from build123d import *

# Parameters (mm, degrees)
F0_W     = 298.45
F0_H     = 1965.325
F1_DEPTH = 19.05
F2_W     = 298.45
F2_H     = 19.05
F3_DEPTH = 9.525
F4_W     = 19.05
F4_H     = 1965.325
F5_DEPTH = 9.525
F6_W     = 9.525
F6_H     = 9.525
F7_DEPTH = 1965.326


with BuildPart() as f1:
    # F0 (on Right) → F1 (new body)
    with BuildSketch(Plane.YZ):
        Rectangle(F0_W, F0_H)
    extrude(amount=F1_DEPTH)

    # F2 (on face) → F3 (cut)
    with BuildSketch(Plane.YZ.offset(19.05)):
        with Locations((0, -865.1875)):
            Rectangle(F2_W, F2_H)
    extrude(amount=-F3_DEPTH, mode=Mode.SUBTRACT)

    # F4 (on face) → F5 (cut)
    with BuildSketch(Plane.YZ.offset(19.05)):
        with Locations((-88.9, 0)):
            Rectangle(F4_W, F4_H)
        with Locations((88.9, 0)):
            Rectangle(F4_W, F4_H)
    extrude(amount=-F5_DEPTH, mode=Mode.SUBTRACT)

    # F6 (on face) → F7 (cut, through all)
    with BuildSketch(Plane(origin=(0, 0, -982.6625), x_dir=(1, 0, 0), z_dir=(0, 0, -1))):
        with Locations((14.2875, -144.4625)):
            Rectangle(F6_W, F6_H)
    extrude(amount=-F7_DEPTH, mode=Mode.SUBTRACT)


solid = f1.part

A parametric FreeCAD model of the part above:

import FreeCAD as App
import Part
import Sketcher
from FreeCAD import Vector
Q = App.Units.Quantity

doc = App.newDocument("Part")
params = doc.addObject("Spreadsheet::Sheet", "Params")
for row, (alias, value) in enumerate([
    ("sketch1_width", "11.75 in"),
    ("sketch1_height", "77.375 in"),
    ("pad1_length", "0.75 in"),
    ("sketch2_width", "11.75 in"),
    ("sketch2_height", "0.75 in"),
    ("pocket1_length", "0.375 in"),
    ("sketch3_width", "0.75 in"),
    ("sketch3_height", "77.375 in"),
    ("pocket2_length", "0.375 in"),
    ("sketch4_width", "0.375 in"),
], start=1):
    params.set(f"A{row}", alias)
    params.set(f"B{row}", "=" + value)
    params.setAlias(f"B{row}", alias)

body = doc.addObject("PartDesign::Body", "Body")

sketch1 = body.newObject("Sketcher::SketchObject", "Sketch")
sketch1.AttachmentSupport = (doc.getObject("YZ_Plane"), [""])
sketch1.MapMode = "FlatFace"
sketch1.addGeometry([
    Part.LineSegment(Vector(-149, 983, 0), Vector(-149, -983, 0)),
    Part.LineSegment(Vector(-149, -983, 0), Vector(149, -983, 0)),
    Part.LineSegment(Vector(149, -983, 0), Vector(149, 983, 0)),
    Part.LineSegment(Vector(149, 983, 0), Vector(-149, 983, 0)),
], False)
sketch1.addConstraint([
    Sketcher.Constraint("Coincident", 0, 2, 1, 1),
    Sketcher.Constraint("Coincident", 1, 2, 2, 1),
    Sketcher.Constraint("Coincident", 2, 2, 3, 1),
    Sketcher.Constraint("Coincident", 3, 2, 0, 1),
    Sketcher.Constraint("Vertical", 0),
    Sketcher.Constraint("Horizontal", 1),
    Sketcher.Constraint("Vertical", 2),
    Sketcher.Constraint("Horizontal", 3),
    Sketcher.Constraint("Symmetric", 0, 2, 2, 2, -1, 1),
    Sketcher.Constraint("DistanceX", 1, 1, 1, 2, Q("11.75 in")),
    Sketcher.Constraint("DistanceY", 0, 2, 0, 1, Q("77.375 in")),
])
sketch1.setExpression("Constraints[9]", "Params.sketch1_width")
sketch1.setExpression("Constraints[10]", "Params.sketch1_height")
pad1 = body.newObject("PartDesign::Pad", "Pad")
pad1.Profile = sketch1
pad1.setExpression("Length", "Params.pad1_length")

sketch2 = body.newObject("Sketcher::SketchObject", "Sketch001")
sketch2.AttachmentSupport = (doc.getObject("YZ_Plane"), [""])
sketch2.MapMode = "FlatFace"
sketch2.AttachmentOffset = App.Placement(Vector(0, 0, 0.75 * 25.4), App.Rotation())
sketch2.addGeometry([
    Part.LineSegment(Vector(-149, -856, 0), Vector(-149, -875, 0)),
    Part.LineSegment(Vector(-149, -875, 0), Vector(149, -875, 0)),
    Part.LineSegment(Vector(149, -875, 0), Vector(149, -856, 0)),
    Part.LineSegment(Vector(149, -856, 0), Vector(-149, -856, 0)),
], False)
sketch2.addConstraint([
    Sketcher.Constraint("Coincident", 0, 2, 1, 1),
    Sketcher.Constraint("Coincident", 1, 2, 2, 1),
    Sketcher.Constraint("Coincident", 2, 2, 3, 1),
    Sketcher.Constraint("Coincident", 3, 2, 0, 1),
    Sketcher.Constraint("Vertical", 0),
    Sketcher.Constraint("Horizontal", 1),
    Sketcher.Constraint("Vertical", 2),
    Sketcher.Constraint("Horizontal", 3),
    Sketcher.Constraint("DistanceX", 1, 1, 1, 2, Q("11.75 in")),
    Sketcher.Constraint("DistanceY", 0, 2, 0, 1, Q("0.75 in")),
    Sketcher.Constraint("DistanceX", 0, 2, -1, 1, Q("5.875 in")),
    Sketcher.Constraint("DistanceY", 0, 2, -1, 1, Q("34.4375 in")),
])
sketch2.setExpression("Constraints[8]", "Params.sketch2_width")
sketch2.setExpression("Constraints[9]", "Params.sketch2_height")
pocket1 = body.newObject("PartDesign::Pocket", "Pocket")
pocket1.Profile = sketch2
pocket1.setExpression("Length", "Params.pocket1_length")

sketch3 = body.newObject("Sketcher::SketchObject", "Sketch002")
sketch3.AttachmentSupport = (doc.getObject("YZ_Plane"), [""])
sketch3.MapMode = "FlatFace"
sketch3.AttachmentOffset = App.Placement(Vector(0, 0, 0.75 * 25.4), App.Rotation())
sketch3.addGeometry([
    Part.LineSegment(Vector(-98, 983, 0), Vector(-98, -983, 0)),
    Part.LineSegment(Vector(-98, -983, 0), Vector(-79, -983, 0)),
    Part.LineSegment(Vector(-79, -983, 0), Vector(-79, 983, 0)),
    Part.LineSegment(Vector(-79, 983, 0), Vector(-98, 983, 0)),
    Part.LineSegment(Vector(79, 983, 0), Vector(79, -983, 0)),
    Part.LineSegment(Vector(79, -983, 0), Vector(98, -983, 0)),
    Part.LineSegment(Vector(98, -983, 0), Vector(98, 983, 0)),
    Part.LineSegment(Vector(98, 983, 0), Vector(79, 983, 0)),
], False)
sketch3.addConstraint([
    Sketcher.Constraint("Coincident", 0, 2, 1, 1),
    Sketcher.Constraint("Coincident", 1, 2, 2, 1),
    Sketcher.Constraint("Coincident", 2, 2, 3, 1),
    Sketcher.Constraint("Coincident", 3, 2, 0, 1),
    Sketcher.Constraint("Coincident", 4, 2, 5, 1),
    Sketcher.Constraint("Coincident", 5, 2, 6, 1),
    Sketcher.Constraint("Coincident", 6, 2, 7, 1),
    Sketcher.Constraint("Coincident", 7, 2, 4, 1),
    Sketcher.Constraint("Vertical", 0),
    Sketcher.Constraint("Horizontal", 1),
    Sketcher.Constraint("Vertical", 2),
    Sketcher.Constraint("Horizontal", 3),
    Sketcher.Constraint("Vertical", 4),
    Sketcher.Constraint("Horizontal", 5),
    Sketcher.Constraint("Vertical", 6),
    Sketcher.Constraint("Horizontal", 7),
    Sketcher.Constraint("Symmetric", 2, 2, 4, 2, -1, 1),
    Sketcher.Constraint("Symmetric", 0, 2, 6, 2, -1, 1),
    Sketcher.Constraint("Horizontal", 1, 2, 4, 2),
    Sketcher.Constraint("DistanceX", 0, 2, 4, 2, Q("7 in")),
    Sketcher.Constraint("DistanceX", 1, 1, 1, 2, Q("0.75 in")),
    Sketcher.Constraint("DistanceY", 0, 2, 0, 1, Q("77.375 in")),
])
sketch3.setExpression("Constraints[20]", "Params.sketch3_width")
sketch3.setExpression("Constraints[21]", "Params.sketch3_height")
pocket2 = body.newObject("PartDesign::Pocket", "Pocket001")
pocket2.Profile = sketch3
pocket2.setExpression("Length", "Params.pocket2_length")

sketch4 = body.newObject("Sketcher::SketchObject", "Sketch003")
sketch4.AttachmentSupport = (doc.getObject("XY_Plane"), [""])
sketch4.MapMode = "FlatFace"
sketch4.AttachmentOffset = App.Placement(Vector(0, 0, -38.6875 * 25.4), App.Rotation())
sketch4.addGeometry([
    Part.LineSegment(Vector(10, 140, 0), Vector(10, 149, 0)),
    Part.LineSegment(Vector(10, 149, 0), Vector(19, 149, 0)),
    Part.LineSegment(Vector(19, 149, 0), Vector(19, 140, 0)),
    Part.LineSegment(Vector(19, 140, 0), Vector(10, 140, 0)),
], False)
sketch4.addConstraint([
    Sketcher.Constraint("Coincident", 0, 2, 1, 1),
    Sketcher.Constraint("Coincident", 1, 2, 2, 1),
    Sketcher.Constraint("Coincident", 2, 2, 3, 1),
    Sketcher.Constraint("Coincident", 3, 2, 0, 1),
    Sketcher.Constraint("Vertical", 0),
    Sketcher.Constraint("Horizontal", 1),
    Sketcher.Constraint("Vertical", 2),
    Sketcher.Constraint("Horizontal", 3),
    Sketcher.Constraint("Equal", 3, 0),
    Sketcher.Constraint("DistanceY", -1, 1, 2, 2, Q("5.5 in")),
    Sketcher.Constraint("DistanceX", 1, 1, 1, 2, Q("0.375 in")),
    Sketcher.Constraint("DistanceX", -1, 1, 1, 2, Q("0.75 in")),
])
sketch4.setExpression("Constraints[10]", "Params.sketch4_width")
pocket3 = body.newObject("PartDesign::Pocket", "Pocket002")
pocket3.Profile = sketch4
pocket3.Type = "ThroughAll"
pocket3.Reversed = True

doc.recompute()
